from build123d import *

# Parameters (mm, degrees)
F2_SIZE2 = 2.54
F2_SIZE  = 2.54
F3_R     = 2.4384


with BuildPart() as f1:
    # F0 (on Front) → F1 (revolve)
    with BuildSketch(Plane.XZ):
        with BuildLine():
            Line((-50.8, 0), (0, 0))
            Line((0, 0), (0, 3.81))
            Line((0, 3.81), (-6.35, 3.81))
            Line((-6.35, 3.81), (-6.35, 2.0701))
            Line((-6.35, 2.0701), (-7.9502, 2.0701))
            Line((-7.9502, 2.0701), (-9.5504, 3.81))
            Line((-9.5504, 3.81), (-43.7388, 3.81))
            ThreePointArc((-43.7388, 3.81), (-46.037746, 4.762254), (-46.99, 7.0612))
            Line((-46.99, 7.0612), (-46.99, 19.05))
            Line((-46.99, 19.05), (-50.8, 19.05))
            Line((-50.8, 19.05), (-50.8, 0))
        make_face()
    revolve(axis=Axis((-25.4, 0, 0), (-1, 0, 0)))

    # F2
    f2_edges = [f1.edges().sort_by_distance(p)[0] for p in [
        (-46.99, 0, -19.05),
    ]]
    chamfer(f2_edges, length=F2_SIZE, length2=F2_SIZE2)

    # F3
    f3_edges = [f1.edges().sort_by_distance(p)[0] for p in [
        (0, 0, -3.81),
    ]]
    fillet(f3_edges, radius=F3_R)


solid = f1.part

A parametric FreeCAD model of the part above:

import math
import FreeCAD as App
import Part
import Sketcher
from FreeCAD import Vector
Q = App.Units.Quantity


def edges_at(feature, points):
    """Names of the edges that pass closest to the given points."""
    edges = feature.Shape.Edges
    near = lambda p: min(range(len(edges)), key=lambda i: edges[i].distToShape(Part.Vertex(*p))[0])
    return sorted({f"Edge{near(p) + 1}" for p in points})

doc = App.newDocument("Part")
body = doc.addObject("PartDesign::Body", "Body")

sketch1 = doc.addObject("Sketcher::SketchObject", "Sketch")
body.addObject(sketch1)
sketch1.AttachmentSupport = (doc.XZ_Plane, [""])
sketch1.MapMode = "FlatFace"
sketch1.addGeometry(Part.LineSegment(Vector(-50.8, 0, 0), Vector(0, 0, 0)), False)
sketch1.addGeometry(Part.LineSegment(Vector(0, 0, 0), Vector(0, 3.8, 0)), False)
sketch1.addGeometry(Part.LineSegment(Vector(0, 3.8, 0), Vector(-6.3, 3.8, 0)), False)
sketch1.addGeometry(Part.LineSegment(Vector(-6.3, 3.8, 0), Vector(-6.3, 2.1, 0)), False)
sketch1.addGeometry(Part.LineSegment(Vector(-6.3, 2.1, 0), Vector(-8, 2.1, 0)), False)
sketch1.addGeometry(Part.LineSegment(Vector(-8, 2.1, 0), Vector(-9.6, 3.8, 0)), False)
sketch1.addGeometry(Part.LineSegment(Vector(-9.6, 3.8, 0), Vector(-43.7, 3.8, 0)), False)
sketch1.addGeometry(Part.ArcOfCircle(Part.Circle(Vector(-43.7, 7.1, 0), Vector(0, 0, 1), 3.3), math.radians(180), math.radians(270)), False)
sketch1.addGeometry(Part.LineSegment(Vector(-47, 7.1, 0), Vector(-47, 19.1, 0)), False)
sketch1.addGeometry(Part.LineSegment(Vector(-47, 19.1, 0), Vector(-50.8, 19.1, 0)), False)
sketch1.addGeometry(Part.LineSegment(Vector(-50.8, 19.1, 0), Vector(-50.8, 0, 0)), False)
sketch1.addConstraint(Sketcher.Constraint("Coincident", 0, 2, 1, 1))
sketch1.addConstraint(Sketcher.Constraint("Coincident", 1, 2, 2, 1))
sketch1.addConstraint(Sketcher.Constraint("Coincident", 2, 2, 3, 1))
sketch1.addConstraint(Sketcher.Constraint("Coincident", 3, 2, 4, 1))
sketch1.addConstraint(Sketcher.Constraint("Coincident", 4, 2, 5, 1))
sketch1.addConstraint(Sketcher.Constraint("Coincident", 5, 2, 6, 1))
sketch1.addConstraint(Sketcher.Constraint("Tangent", 6, 2, 7, 2))
sketch1.addConstraint(Sketcher.Constraint("Tangent", 7, 1, 8, 1))
sketch1.addConstraint(Sketcher.Constraint("Coincident", 8, 2, 9, 1))
sketch1.addConstraint(Sketcher.Constraint("Coincident", 9, 2, 10, 1))
sketch1.addConstraint(Sketcher.Constraint("Coincident", 10, 2, 0, 1))
sketch1.addConstraint(Sketcher.Constraint("Horizontal", 0))
sketch1.addConstraint(Sketcher.Constraint("Vertical", 1))
sketch1.addConstraint(Sketcher.Constraint("Horizontal", 2))
sketch1.addConstraint(Sketcher.Constraint("Vertical", 3))
sketch1.addConstraint(Sketcher.Constraint("Horizontal", 4))
sketch1.addConstraint(Sketcher.Constraint("Horizontal", 6))
sketch1.addConstraint(Sketcher.Constraint("Vertical", 8))
sketch1.addConstraint(Sketcher.Constraint("Horizontal", 9))
sketch1.addConstraint(Sketcher.Constraint("Vertical", 10))
sketch1.addConstraint(Sketcher.Constraint("Coincident", 0, 2, -1, 1))
sketch1.addConstraint(Sketcher.Constraint("Horizontal", 2, 2, 5, 2))
sketch1.addConstraint(Sketcher.Constraint("Equal", 9, 1))
sketch1.addConstraint(Sketcher.Constraint("DistanceX", 0, 1, 0, 2, Q("2 in")))
sketch1.addConstraint(Sketcher.Constraint("Radius", 7, Q("0.1279999 in")))
sketch1.addConstraint(Sketcher.Constraint("DistanceX", 2, 2, 2, 1, Q("0.25 in")))
sketch1.addConstraint(Sketcher.Constraint("DistanceX", 9, 2, 9, 1, Q("0.15 in")))
sketch1.addConstraint(Sketcher.Constraint("DistanceY", 10, 2, 10, 1, Q("0.75 in")))
sketch1.addConstraint(Sketcher.Constraint("DistanceX", 4, 2, 4, 1, Q("0.063 in")))
sketch1.addConstraint(Sketcher.Constraint("DistanceX", 6, 2, 6, 1, Q("1.346 in")))
sketch1.addConstraint(Sketcher.Constraint("DistanceY", 3, 2, 3, 1, Q("0.0685 in")))
revolution = doc.addObject("PartDesign::Revolution", "Revolution")
body.addObject(revolution)
revolution.Profile = sketch1
revolution.ReferenceAxis = (sketch1, ["H_Axis"])
revolution.Angle = 360
doc.recompute()

chamfer = doc.addObject("PartDesign::Chamfer", "Chamfer")
body.addObject(chamfer)
chamfer.Base = (revolution, edges_at(revolution, [(-46.99, 0, -19.05)]))
chamfer.ChamferType = "Two distances"
chamfer.Size = Q("0.1 in")
chamfer.Size2 = Q("0.1 in")
doc.recompute()

fillet = doc.addObject("PartDesign::Fillet", "Fillet")
body.addObject(fillet)
fillet.Base = (chamfer, edges_at(chamfer, [(0, 0, -3.81)]))
fillet.Radius = Q("0.096 in")

doc.recompute()
